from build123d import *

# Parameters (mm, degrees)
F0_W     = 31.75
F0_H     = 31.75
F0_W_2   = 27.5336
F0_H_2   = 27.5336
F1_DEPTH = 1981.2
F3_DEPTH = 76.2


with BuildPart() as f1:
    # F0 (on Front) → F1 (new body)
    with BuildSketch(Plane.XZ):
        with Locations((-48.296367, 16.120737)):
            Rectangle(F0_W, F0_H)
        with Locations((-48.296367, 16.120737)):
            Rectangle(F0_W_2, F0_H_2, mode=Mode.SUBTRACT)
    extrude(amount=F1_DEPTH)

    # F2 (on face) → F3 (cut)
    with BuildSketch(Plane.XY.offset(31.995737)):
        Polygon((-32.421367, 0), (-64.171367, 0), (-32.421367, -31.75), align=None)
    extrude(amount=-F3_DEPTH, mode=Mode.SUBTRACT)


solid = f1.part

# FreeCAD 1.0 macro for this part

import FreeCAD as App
import Part
import Sketcher

V = App.Vector
Q = App.Units.Quantity


def add_polygon(sketch, points):
    """Adds a closed chain of lines whose ends are joined by coincident constraints."""
    first, n = sketch.GeometryCount, len(points)
    for a, b in zip(points, points[1:] + points[:1]):
        sketch.addGeometry(Part.LineSegment(App.Vector(*a, 0), App.Vector(*b, 0)), False)
    for i in range(n):
        sketch.addConstraint(Sketcher.Constraint("Coincident", first + i, 2, first + (i + 1) % n, 1))

doc = App.newDocument("Part")
params = doc.addObject("Spreadsheet::Sheet", "Params")
for row, (alias, value) in enumerate([
    ("sketch1_width", "1.25 in"),
    ("sketch1_width2", "1.084 in"),
    ("pad1_length", "78 in"),
    ("sketch2_width", "1.25 in"),
    ("pocket1_length", "3 in"),
], start=1):
    params.set(f"A{row}", alias)
    params.set(f"B{row}", "=" + value)
    params.setAlias(f"B{row}", alias)

body = doc.addObject("PartDesign::Body", "Body")

# Sketch on XZ plane
sketch1 = body.newObject("Sketcher::SketchObject", "Sketch")
sketch1.AttachmentSupport = (doc.getObject("XZ_Plane"), [""])
sketch1.MapMode = "FlatFace"
add_polygon(sketch1, [(-64, 32), (-64, 0), (-32, 0), (-32, 32)])  # lines 0-3
add_polygon(sketch1, [(-35, 2), (-62, 2), (-62, 30), (-35, 30)])  # lines 4-7
sketch1.addConstraint(Sketcher.Constraint("Vertical", 0))
sketch1.addConstraint(Sketcher.Constraint("Horizontal", 1))
sketch1.addConstraint(Sketcher.Constraint("Vertical", 2))
sketch1.addConstraint(Sketcher.Constraint("Horizontal", 3))
sketch1.addConstraint(Sketcher.Constraint("Horizontal", 4))
sketch1.addConstraint(Sketcher.Constraint("Vertical", 5))
sketch1.addConstraint(Sketcher.Constraint("Horizontal", 6))
sketch1.addConstraint(Sketcher.Constraint("Vertical", 7))
sketch1.addConstraint(Sketcher.Constraint("Equal", 3, 0))
sketch1.addConstraint(Sketcher.Constraint("Equal", 6, 5))
sketch1.addConstraint(Sketcher.Constraint("DistanceX", 1, 1, 1, 2, Q("1.25 in")))
sketch1.addConstraint(Sketcher.Constraint("DistanceX", 4, 2, 4, 1, Q("1.084 in")))
sketch1.addConstraint(Sketcher.Constraint("DistanceX", 0, 2, 4, 2, Q("0.083 in")))
sketch1.addConstraint(Sketcher.Constraint("DistanceY", 0, 2, 4, 2, Q("0.083 in")))
sketch1.addConstraint(Sketcher.Constraint("DistanceX", 0, 2, -1, 1, Q("64.171367 mm")))
sketch1.addConstraint(Sketcher.Constraint("DistanceY", -1, 1, 0, 2, Q("0.245737 mm")))
sketch1.setExpression("Constraints[18]", "Params.sketch1_width")
sketch1.setExpression("Constraints[19]", "Params.sketch1_width2")
pad1 = body.newObject("PartDesign::Pad", "Pad")
pad1.Profile = sketch1
pad1.setExpression("Length", "Params.pad1_length")

# Sketch on XY plane
sketch2 = body.newObject("Sketcher::SketchObject", "Sketch001")
sketch2.AttachmentSupport = (doc.getObject("XY_Plane"), [""])
sketch2.MapMode = "FlatFace"
sketch2.AttachmentOffset = App.Placement(V(0, 0, 31.995737), App.Rotation())
add_polygon(sketch2, [(-32, 0), (-64, 0), (-32, -32)])  # lines 0-2
sketch2.addConstraint(Sketcher.Constraint("Horizontal", 0))
sketch2.addConstraint(Sketcher.Constraint("Vertical", 2))
sketch2.addConstraint(Sketcher.Constraint("PointOnObject", 0, 2, -1))
sketch2.addConstraint(Sketcher.Constraint("Equal", 0, 2))
sketch2.addConstraint(Sketcher.Constraint("DistanceX", 0, 2, 0, 1, Q("1.25 in")))
sketch2.addConstraint(Sketcher.Constraint("DistanceX", 0, 2, -1, 1, Q("64.171367 mm")))
sketch2.setExpression("Constraints[7]", "Params.sketch2_width")
pocket1 = body.newObject("PartDesign::Pocket", "Pocket")
pocket1.Profile = sketch2
pocket1.setExpression("Length", "Params.pocket1_length")

doc.recompute()
